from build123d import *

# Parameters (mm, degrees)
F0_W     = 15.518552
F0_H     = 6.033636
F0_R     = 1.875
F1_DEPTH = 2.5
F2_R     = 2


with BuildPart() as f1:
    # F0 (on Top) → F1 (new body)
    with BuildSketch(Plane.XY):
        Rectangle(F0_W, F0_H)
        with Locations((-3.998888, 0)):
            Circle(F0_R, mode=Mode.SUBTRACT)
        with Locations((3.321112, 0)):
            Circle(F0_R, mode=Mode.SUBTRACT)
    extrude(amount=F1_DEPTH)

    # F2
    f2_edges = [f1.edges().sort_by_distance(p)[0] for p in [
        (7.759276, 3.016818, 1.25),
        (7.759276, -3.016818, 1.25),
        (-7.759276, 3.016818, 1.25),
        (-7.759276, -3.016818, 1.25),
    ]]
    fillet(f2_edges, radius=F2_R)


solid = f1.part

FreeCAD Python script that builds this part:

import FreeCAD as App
import Part
import Sketcher
Q = App.Units.Quantity


def edges_at(feature, points):
    """Names of the edges that pass closest to the given points."""
    edges = feature.Shape.Edges
    near = lambda p: min(range(len(edges)), key=lambda i: edges[i].distToShape(Part.Vertex(*p))[0])
    return sorted({f"Edge{near(p) + 1}" for p in points})


def add_polygon(sketch, points):
    """Adds a closed chain of lines whose ends are joined by coincident constraints."""
    first, n = sketch.GeometryCount, len(points)
    for a, b in zip(points, points[1:] + points[:1]):
        sketch.addGeometry(Part.LineSegment(App.Vector(*a, 0), App.Vector(*b, 0)), False)
    for i in range(n):
        sketch.addConstraint(Sketcher.Constraint("Coincident", first + i, 2, first + (i + 1) % n, 1))

doc = App.newDocument("Part")
params = doc.addObject("Spreadsheet::Sheet", "Params")
for row, (alias, value) in enumerate([
    ("sketch1_diameter", "3.75 mm"),
    ("pad1_length", "2.5 mm"),
    ("fillet_radius", "2 mm"),
], start=1):
    params.set(f"A{row}", alias)
    params.set(f"B{row}", "=" + value)
    params.setAlias(f"B{row}", alias)

body = doc.addObject("PartDesign::Body", "Body")

sketch1 = body.newObject("Sketcher::SketchObject", "Sketch")
sketch1.AttachmentSupport = (doc.getObject("XY_Plane"), [""])
sketch1.MapMode = "FlatFace"
add_polygon(sketch1, [(-7.759276, 3.016818), (-7.759276, -3.016818), (7.759276, -3.016818), (7.759276, 3.016818)])
sketch1.addGeometry(Part.Circle(App.Vector(-3.998888, 0, 0), App.Vector(0, 0, 1), 1.875), False)
sketch1.addGeometry(Part.Circle(App.Vector(3.321112, 0, 0), App.Vector(0, 0, 1), 1.875), False)
sketch1.addConstraint([
    Sketcher.Constraint("Vertical", 0),
    Sketcher.Constraint("Horizontal", 1),
    Sketcher.Constraint("Vertical", 2),
    Sketcher.Constraint("Horizontal", 3),
    Sketcher.Constraint("Equal", 4, 5),
    Sketcher.Constraint("Symmetric", 0, 2, 2, 2, -1, 1),
    Sketcher.Constraint("PointOnObject", 4, 3, -1),
    Sketcher.Constraint("PointOnObject", 5, 3, -1),
    Sketcher.Constraint("Diameter", 4, Q("3.75 mm")),
    Sketcher.Constraint("DistanceX", 4, 3, 5, 3, Q("7.32 mm")),
    Sketcher.Constraint("DistanceX", 1, 1, 1, 2, Q("15.518552 mm")),
    Sketcher.Constraint("DistanceY", 0, 2, 0, 1, Q("6.033636 mm")),
    Sketcher.Constraint("DistanceX", 4, 3, -1, 1, Q("3.998888 mm")),
])
sketch1.setExpression("Constraints[12]", "Params.sketch1_diameter")
pad1 = body.newObject("PartDesign::Pad", "Pad")
pad1.Profile = sketch1
pad1.setExpression("Length", "Params.pad1_length")
doc.recompute()

fillet = body.newObject("PartDesign::Fillet", "Fillet")
fillet.Base = (pad1, edges_at(pad1, [
    (7.759, 3.017, 1.25),
    (7.759, -3.017, 1.25),
    (-7.759, 3.017, 1.25),
    (-7.759, -3.017, 1.25),
]))
fillet.setExpression("Radius", "Params.fillet_radius")

doc.recompute()
